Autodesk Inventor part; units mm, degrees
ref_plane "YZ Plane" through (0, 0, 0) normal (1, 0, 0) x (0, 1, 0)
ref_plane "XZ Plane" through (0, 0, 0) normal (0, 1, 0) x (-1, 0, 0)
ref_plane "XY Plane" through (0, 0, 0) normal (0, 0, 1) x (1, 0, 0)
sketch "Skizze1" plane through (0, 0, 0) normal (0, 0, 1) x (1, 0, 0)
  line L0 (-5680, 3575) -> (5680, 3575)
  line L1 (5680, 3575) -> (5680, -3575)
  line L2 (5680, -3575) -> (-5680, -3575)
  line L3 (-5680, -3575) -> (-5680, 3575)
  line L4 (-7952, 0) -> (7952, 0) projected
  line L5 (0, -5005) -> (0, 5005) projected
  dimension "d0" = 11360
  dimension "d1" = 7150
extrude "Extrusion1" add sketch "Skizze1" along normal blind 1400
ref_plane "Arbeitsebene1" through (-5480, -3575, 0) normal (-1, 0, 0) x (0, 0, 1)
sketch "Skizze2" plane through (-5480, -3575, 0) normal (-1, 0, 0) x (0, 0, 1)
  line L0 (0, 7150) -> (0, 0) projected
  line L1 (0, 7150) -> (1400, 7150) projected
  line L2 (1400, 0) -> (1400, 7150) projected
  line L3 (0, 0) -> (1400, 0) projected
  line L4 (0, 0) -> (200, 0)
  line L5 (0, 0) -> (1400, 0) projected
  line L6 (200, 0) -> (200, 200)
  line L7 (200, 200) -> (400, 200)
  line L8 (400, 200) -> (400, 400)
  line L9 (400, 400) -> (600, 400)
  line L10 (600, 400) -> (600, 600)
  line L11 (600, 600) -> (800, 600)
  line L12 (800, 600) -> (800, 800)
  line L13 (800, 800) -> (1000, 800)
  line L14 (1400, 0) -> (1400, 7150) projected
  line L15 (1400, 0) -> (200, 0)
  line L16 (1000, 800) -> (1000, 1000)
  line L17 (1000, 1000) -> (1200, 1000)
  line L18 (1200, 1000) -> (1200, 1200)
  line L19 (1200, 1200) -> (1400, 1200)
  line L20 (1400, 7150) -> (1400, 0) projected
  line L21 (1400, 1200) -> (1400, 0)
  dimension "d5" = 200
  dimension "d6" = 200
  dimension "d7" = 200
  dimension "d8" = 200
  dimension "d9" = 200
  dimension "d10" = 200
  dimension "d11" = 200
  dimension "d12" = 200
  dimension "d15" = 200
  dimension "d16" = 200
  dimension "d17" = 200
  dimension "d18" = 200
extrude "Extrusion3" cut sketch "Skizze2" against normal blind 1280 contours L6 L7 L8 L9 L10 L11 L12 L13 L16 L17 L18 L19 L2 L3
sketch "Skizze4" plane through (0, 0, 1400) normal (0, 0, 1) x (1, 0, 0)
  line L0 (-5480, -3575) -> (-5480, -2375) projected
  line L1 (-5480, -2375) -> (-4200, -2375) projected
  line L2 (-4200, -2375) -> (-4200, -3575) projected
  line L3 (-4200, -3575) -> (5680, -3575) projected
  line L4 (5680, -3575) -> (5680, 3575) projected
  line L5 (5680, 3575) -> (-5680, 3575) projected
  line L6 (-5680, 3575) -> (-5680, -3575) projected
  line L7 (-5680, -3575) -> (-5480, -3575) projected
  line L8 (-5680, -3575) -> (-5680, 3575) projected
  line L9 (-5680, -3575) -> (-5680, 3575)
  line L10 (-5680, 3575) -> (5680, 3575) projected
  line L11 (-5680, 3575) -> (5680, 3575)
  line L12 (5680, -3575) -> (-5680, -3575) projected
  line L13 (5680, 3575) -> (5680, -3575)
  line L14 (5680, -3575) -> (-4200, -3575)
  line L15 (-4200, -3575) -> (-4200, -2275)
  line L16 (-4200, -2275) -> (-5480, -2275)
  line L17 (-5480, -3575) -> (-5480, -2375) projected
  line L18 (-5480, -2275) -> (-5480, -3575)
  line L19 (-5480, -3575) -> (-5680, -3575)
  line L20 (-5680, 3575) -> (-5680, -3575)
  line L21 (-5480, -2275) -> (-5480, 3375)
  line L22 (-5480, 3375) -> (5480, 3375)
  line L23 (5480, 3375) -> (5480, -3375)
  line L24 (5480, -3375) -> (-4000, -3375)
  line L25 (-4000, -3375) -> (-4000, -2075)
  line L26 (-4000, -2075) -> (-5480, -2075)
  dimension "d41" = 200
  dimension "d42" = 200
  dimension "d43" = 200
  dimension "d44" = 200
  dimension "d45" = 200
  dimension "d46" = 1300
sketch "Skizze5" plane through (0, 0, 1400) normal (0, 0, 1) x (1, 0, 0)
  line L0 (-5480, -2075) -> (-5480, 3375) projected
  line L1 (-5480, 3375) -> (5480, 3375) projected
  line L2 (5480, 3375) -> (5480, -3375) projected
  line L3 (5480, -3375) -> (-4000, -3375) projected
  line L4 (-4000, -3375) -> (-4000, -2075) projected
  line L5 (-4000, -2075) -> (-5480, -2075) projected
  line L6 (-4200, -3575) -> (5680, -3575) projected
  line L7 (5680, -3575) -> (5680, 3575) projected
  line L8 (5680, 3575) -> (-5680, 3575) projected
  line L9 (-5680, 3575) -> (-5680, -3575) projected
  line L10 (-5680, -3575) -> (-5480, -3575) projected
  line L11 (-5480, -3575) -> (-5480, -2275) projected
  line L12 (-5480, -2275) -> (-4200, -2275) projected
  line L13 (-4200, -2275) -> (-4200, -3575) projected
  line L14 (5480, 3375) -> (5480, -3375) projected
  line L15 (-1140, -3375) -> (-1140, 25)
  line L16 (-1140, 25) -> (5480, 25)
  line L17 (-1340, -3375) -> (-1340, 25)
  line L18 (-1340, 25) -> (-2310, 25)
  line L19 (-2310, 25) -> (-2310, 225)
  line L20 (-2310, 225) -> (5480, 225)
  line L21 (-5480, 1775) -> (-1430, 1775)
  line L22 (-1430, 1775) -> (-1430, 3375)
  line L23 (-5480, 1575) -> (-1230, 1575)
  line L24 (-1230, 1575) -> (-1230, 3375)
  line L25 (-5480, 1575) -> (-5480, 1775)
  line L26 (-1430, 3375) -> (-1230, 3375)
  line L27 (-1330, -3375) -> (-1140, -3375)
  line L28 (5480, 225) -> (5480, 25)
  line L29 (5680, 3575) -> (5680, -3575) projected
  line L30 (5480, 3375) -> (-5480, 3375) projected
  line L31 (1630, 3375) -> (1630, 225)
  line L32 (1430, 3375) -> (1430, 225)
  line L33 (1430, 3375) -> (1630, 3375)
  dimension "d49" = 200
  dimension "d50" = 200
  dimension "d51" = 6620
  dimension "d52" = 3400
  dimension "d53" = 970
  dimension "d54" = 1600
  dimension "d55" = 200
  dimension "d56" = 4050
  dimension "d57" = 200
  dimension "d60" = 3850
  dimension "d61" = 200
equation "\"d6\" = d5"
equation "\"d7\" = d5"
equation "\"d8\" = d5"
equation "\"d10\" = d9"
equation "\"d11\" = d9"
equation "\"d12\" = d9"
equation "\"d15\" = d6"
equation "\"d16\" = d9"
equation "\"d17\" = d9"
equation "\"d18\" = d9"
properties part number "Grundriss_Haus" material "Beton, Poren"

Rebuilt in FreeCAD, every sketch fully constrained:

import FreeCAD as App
import Part
import Sketcher

doc = App.newDocument("Part")
body = doc.addObject("PartDesign::Body", "Body")

# Sketch on XY plane
sketch1 = body.newObject("Sketcher::SketchObject", "Sketch")
sketch1.AttachmentSupport = (doc.getObject("XY_Plane"), [""])
sketch1.MapMode = "FlatFace"
sketch1.addGeometry([
    Part.LineSegment(App.Vector(-5680, 3575, 0), App.Vector(-5680, -3575, 0)),
    Part.LineSegment(App.Vector(-5680, -3575, 0), App.Vector(5680, -3575, 0)),
    Part.LineSegment(App.Vector(5680, -3575, 0), App.Vector(5680, 3575, 0)),
    Part.LineSegment(App.Vector(5680, 3575, 0), App.Vector(-5680, 3575, 0)),
], False)
sketch1.addConstraint([
    Sketcher.Constraint("Coincident", 0, 2, 1, 1),
    Sketcher.Constraint("Coincident", 1, 2, 2, 1),
    Sketcher.Constraint("Coincident", 2, 2, 3, 1),
    Sketcher.Constraint("Coincident", 3, 2, 0, 1),
    Sketcher.Constraint("Vertical", 0),
    Sketcher.Constraint("Horizontal", 1),
    Sketcher.Constraint("Vertical", 2),
    Sketcher.Constraint("Horizontal", 3),
    Sketcher.Constraint("Symmetric", 0, 2, 2, 2, -1, 1),
    Sketcher.Constraint("DistanceX", 1, 1, 1, 2, 11360.0),
    Sketcher.Constraint("DistanceY", 0, 2, 0, 1, 7150.0),
])
pad1 = body.newObject("PartDesign::Pad", "Pad")
pad1.Profile = sketch1
pad1.Length = 1400

# Sketch on YZ plane
sketch2 = body.newObject("Sketcher::SketchObject", "Sketch001")
sketch2.AttachmentSupport = (doc.getObject("YZ_Plane"), [""])
sketch2.MapMode = "FlatFace"
sketch2.AttachmentOffset = App.Placement(App.Vector(0, 0, -5480), App.Rotation())
sketch2.addGeometry([
    Part.LineSegment(App.Vector(-3375, 200, 0), App.Vector(-3575, 200, 0)),  # 0
    Part.LineSegment(App.Vector(-3575, 200, 0), App.Vector(-3575, 1400, 0)),  # 1
    Part.LineSegment(App.Vector(-3575, 1400, 0), App.Vector(-2375, 1400, 0)),  # 2
    Part.LineSegment(App.Vector(-2375, 1400, 0), App.Vector(-2375, 1200, 0)),  # 3
    Part.LineSegment(App.Vector(-2375, 1200, 0), App.Vector(-2575, 1200, 0)),  # 4
    Part.LineSegment(App.Vector(-2575, 1200, 0), App.Vector(-2575, 1000, 0)),  # 5
    Part.LineSegment(App.Vector(-2575, 1000, 0), App.Vector(-2775, 1000, 0)),  # 6
    Part.LineSegment(App.Vector(-2775, 1000, 0), App.Vector(-2775, 800, 0)),  # 7
    Part.LineSegment(App.Vector(-2775, 800, 0), App.Vector(-2975, 800, 0)),  # 8
    Part.LineSegment(App.Vector(-2975, 800, 0), App.Vector(-2975, 600, 0)),  # 9
    Part.LineSegment(App.Vector(-2975, 600, 0), App.Vector(-3175, 600, 0)),  # 10
    Part.LineSegment(App.Vector(-3175, 600, 0), App.Vector(-3175, 400, 0)),  # 11
    Part.LineSegment(App.Vector(-3175, 400, 0), App.Vector(-3375, 400, 0)),  # 12
    Part.LineSegment(App.Vector(-3375, 400, 0), App.Vector(-3375, 200, 0)),  # 13
], False)
sketch2.addConstraint([
    Sketcher.Constraint("Coincident", 0, 2, 1, 1),
    Sketcher.Constraint("Coincident", 1, 2, 2, 1),
    Sketcher.Constraint("Coincident", 2, 2, 3, 1),
    Sketcher.Constraint("Coincident", 3, 2, 4, 1),
    Sketcher.Constraint("Coincident", 4, 2, 5, 1),
    Sketcher.Constraint("Coincident", 5, 2, 6, 1),
    Sketcher.Constraint("Coincident", 6, 2, 7, 1),
    Sketcher.Constraint("Coincident", 7, 2, 8, 1),
    Sketcher.Constraint("Coincident", 8, 2, 9, 1),
    Sketcher.Constraint("Coincident", 9, 2, 10, 1),
    Sketcher.Constraint("Coincident", 10, 2, 11, 1),
    Sketcher.Constraint("Coincident", 11, 2, 12, 1),
    Sketcher.Constraint("Coincident", 12, 2, 13, 1),
    Sketcher.Constraint("Coincident", 13, 2, 0, 1),
    Sketcher.Constraint("Horizontal", 0),
    Sketcher.Constraint("Vertical", 1),
    Sketcher.Constraint("Horizontal", 2),
    Sketcher.Constraint("Vertical", 3),
    Sketcher.Constraint("Horizontal", 4),
    Sketcher.Constraint("Vertical", 5),
    Sketcher.Constraint("Horizontal", 6),
    Sketcher.Constraint("Vertical", 7),
    Sketcher.Constraint("Horizontal", 8),
    Sketcher.Constraint("Vertical", 9),
    Sketcher.Constraint("Horizontal", 10),
    Sketcher.Constraint("Vertical", 11),
    Sketcher.Constraint("Horizontal", 12),
    Sketcher.Constraint("Vertical", 13),
    Sketcher.Constraint("Equal", 0, 4),
    Sketcher.Constraint("Equal", 4, 6),
    Sketcher.Constraint("Equal", 6, 8),
    Sketcher.Constraint("Equal", 8, 10),
    Sketcher.Constraint("Equal", 10, 12),
    Sketcher.Constraint("Equal", 2, 1),
    Sketcher.Constraint("Equal", 12, 3),
    Sketcher.Constraint("Equal", 3, 5),
    Sketcher.Constraint("Equal", 5, 7),
    Sketcher.Constraint("Equal", 7, 9),
    Sketcher.Constraint("Equal", 9, 11),
    Sketcher.Constraint("DistanceX", 0, 2, 0, 1, 200.0),
    Sketcher.Constraint("DistanceY", -1, 1, 0, 2, 200.0),
    Sketcher.Constraint("DistanceX", 0, 2, -1, 1, 3575.0),
])
pocket1 = body.newObject("PartDesign::Pocket", "Pocket")
pocket1.Profile = sketch2
pocket1.Length = 1280
pocket1.Reversed = True

doc.recompute()
